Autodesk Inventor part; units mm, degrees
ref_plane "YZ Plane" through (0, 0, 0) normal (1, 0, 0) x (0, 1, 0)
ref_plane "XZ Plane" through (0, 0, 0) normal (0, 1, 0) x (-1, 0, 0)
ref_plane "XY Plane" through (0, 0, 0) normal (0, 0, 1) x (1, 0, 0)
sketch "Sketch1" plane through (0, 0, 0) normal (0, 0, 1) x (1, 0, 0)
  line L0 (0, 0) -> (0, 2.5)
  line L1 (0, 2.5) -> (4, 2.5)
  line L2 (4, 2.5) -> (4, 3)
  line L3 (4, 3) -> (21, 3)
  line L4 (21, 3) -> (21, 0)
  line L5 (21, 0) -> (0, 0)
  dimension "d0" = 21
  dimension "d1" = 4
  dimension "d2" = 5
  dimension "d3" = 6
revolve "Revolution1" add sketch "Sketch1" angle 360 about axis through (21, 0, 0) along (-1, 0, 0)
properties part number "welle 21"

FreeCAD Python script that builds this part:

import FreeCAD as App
import Part
import Sketcher
from FreeCAD import Vector
Q = App.Units.Quantity


def add_polygon(sketch, points):
    """Adds a closed chain of lines whose ends are joined by coincident constraints."""
    first, n = sketch.GeometryCount, len(points)
    for a, b in zip(points, points[1:] + points[:1]):
        sketch.addGeometry(Part.LineSegment(App.Vector(*a, 0), App.Vector(*b, 0)), False)
    for i in range(n):
        sketch.addConstraint(Sketcher.Constraint("Coincident", first + i, 2, first + (i + 1) % n, 1))

doc = App.newDocument("Part")
body = doc.addObject("PartDesign::Body", "Body")

sketch1 = body.newObject("Sketcher::SketchObject", "Sketch")
sketch1.AttachmentSupport = (doc.getObject("XY_Plane"), [""])
sketch1.MapMode = "FlatFace"
add_polygon(sketch1, [(0, 2.5), (0, 0), (21, 0), (21, 3), (4, 3), (4, 2.5)])
sketch1.addConstraint(Sketcher.Constraint("Vertical", 0))
sketch1.addConstraint(Sketcher.Constraint("Horizontal", 1))
sketch1.addConstraint(Sketcher.Constraint("Vertical", 2))
sketch1.addConstraint(Sketcher.Constraint("Horizontal", 3))
sketch1.addConstraint(Sketcher.Constraint("Vertical", 4))
sketch1.addConstraint(Sketcher.Constraint("Horizontal", 5))
sketch1.addConstraint(Sketcher.Constraint("Coincident", 0, 2, -1, 1))
sketch1.addConstraint(Sketcher.Constraint("DistanceX", 1, 1, 1, 2, Q("21 mm")))
sketch1.addConstraint(Sketcher.Constraint("DistanceX", 5, 2, 5, 1, Q("4 mm")))
sketch1.addConstraint(Sketcher.Constraint("DistanceY", 2, 1, 2, 2, Q("3 mm")))
sketch1.addConstraint(Sketcher.Constraint("DistanceY", 0, 2, 0, 1, Q("2.5 mm")))
revolution = body.newObject("PartDesign::Revolution", "Revolution")
revolution.Profile = sketch1
revolution.ReferenceAxis = (sketch1, ["H_Axis"])
revolution.Angle = 360

doc.recompute()
